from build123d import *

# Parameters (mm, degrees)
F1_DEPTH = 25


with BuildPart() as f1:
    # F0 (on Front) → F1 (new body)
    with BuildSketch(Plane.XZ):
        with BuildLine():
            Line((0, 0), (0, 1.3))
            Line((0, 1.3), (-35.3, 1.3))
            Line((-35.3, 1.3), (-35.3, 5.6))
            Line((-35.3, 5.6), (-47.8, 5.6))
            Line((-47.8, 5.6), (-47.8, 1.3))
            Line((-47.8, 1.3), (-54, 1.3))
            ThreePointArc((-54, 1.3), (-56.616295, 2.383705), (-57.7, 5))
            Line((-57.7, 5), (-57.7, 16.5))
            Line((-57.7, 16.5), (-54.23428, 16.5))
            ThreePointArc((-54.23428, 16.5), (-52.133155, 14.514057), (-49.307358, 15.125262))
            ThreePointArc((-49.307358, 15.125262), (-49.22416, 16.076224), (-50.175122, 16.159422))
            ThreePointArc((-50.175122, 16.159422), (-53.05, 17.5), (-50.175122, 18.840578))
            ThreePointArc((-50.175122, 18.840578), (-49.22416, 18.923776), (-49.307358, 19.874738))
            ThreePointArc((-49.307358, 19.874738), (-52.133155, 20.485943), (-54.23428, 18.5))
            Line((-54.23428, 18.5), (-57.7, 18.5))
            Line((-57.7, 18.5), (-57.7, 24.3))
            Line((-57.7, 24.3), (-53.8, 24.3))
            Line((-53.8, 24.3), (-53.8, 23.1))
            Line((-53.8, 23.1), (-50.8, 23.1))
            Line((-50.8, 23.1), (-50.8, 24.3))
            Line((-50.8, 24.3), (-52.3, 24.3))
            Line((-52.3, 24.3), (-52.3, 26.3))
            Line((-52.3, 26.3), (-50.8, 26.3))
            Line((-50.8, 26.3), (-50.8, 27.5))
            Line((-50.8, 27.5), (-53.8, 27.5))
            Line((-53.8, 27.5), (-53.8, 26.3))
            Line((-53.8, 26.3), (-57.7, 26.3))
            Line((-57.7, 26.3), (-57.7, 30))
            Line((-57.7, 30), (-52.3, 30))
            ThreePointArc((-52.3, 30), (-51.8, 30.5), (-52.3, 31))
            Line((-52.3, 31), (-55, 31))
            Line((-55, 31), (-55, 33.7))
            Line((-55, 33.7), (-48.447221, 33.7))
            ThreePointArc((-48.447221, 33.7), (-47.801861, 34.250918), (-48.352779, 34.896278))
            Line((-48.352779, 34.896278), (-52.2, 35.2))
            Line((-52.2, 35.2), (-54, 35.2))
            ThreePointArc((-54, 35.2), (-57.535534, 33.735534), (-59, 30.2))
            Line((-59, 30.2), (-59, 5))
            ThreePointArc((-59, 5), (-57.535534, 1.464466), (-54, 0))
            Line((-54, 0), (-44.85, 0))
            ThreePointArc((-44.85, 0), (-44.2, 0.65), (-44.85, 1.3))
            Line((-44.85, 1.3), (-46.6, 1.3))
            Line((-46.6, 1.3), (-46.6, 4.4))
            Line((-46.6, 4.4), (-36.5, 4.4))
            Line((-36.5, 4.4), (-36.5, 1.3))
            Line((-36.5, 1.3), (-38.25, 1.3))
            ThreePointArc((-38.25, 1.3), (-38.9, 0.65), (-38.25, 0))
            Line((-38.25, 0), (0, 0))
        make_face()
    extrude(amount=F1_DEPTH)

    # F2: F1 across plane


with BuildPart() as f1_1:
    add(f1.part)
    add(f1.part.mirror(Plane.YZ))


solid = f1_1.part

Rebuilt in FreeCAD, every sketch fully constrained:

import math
import FreeCAD as App
import Part
import Sketcher
from FreeCAD import Vector

doc = App.newDocument("Part")
body = doc.addObject("PartDesign::Body", "Body")

sketch1 = doc.addObject("Sketcher::SketchObject", "Sketch")
body.addObject(sketch1)
sketch1.AttachmentSupport = (doc.XZ_Plane, [""])
sketch1.MapMode = "FlatFace"
sketch1.addGeometry([
    Part.LineSegment(Vector(0, 0, 0), Vector(0, 1.3, 0)),
    Part.LineSegment(Vector(0, 1.3, 0), Vector(-35.3, 1.3, 0)),
    Part.LineSegment(Vector(-35.3, 1.3, 0), Vector(-35.3, 5.6, 0)),
    Part.LineSegment(Vector(-35.3, 5.6, 0), Vector(-47.8, 5.6, 0)),
    Part.LineSegment(Vector(-47.8, 5.6, 0), Vector(-47.8, 1.3, 0)),
    Part.LineSegment(Vector(-47.8, 1.3, 0), Vector(-54, 1.3, 0)),
    Part.ArcOfCircle(Part.Circle(Vector(-54, 5, 0), Vector(0, 0, 1), 3.7), math.radians(-180), math.radians(-90)),
    Part.LineSegment(Vector(-57.7, 5, 0), Vector(-57.7, 16.5, 0)),
    Part.LineSegment(Vector(-57.7, 16.5, 0), Vector(-54.2, 16.5, 0)),
    Part.ArcOfCircle(Part.Circle(Vector(-51.3, 17.5, 0), Vector(0, 0, 1), 3.1), math.radians(-161), math.radians(-50)),
    Part.ArcOfCircle(Part.Circle(Vector(-49.7, 15.6, 0), Vector(0, 0, 1), 0.7), math.radians(-50), math.radians(130)),
    Part.ArcOfCircle(Part.Circle(Vector(-51.3, 17.5, 0), Vector(0, 0, 1), 1.7), math.radians(50), math.radians(310)),
    Part.ArcOfCircle(Part.Circle(Vector(-49.7, 19.4, 0), Vector(0, 0, 1), 0.7), math.radians(-130), math.radians(50)),
    Part.ArcOfCircle(Part.Circle(Vector(-51.3, 17.5, 0), Vector(0, 0, 1), 3.1), math.radians(50), math.radians(161)),
    Part.LineSegment(Vector(-54.2, 18.5, 0), Vector(-57.7, 18.5, 0)),
    Part.LineSegment(Vector(-57.7, 18.5, 0), Vector(-57.7, 24.3, 0)),
    Part.LineSegment(Vector(-57.7, 24.3, 0), Vector(-53.8, 24.3, 0)),
    Part.LineSegment(Vector(-53.8, 24.3, 0), Vector(-53.8, 23.1, 0)),
    Part.LineSegment(Vector(-53.8, 23.1, 0), Vector(-50.8, 23.1, 0)),
    Part.LineSegment(Vector(-50.8, 23.1, 0), Vector(-50.8, 24.3, 0)),
    Part.LineSegment(Vector(-50.8, 24.3, 0), Vector(-52.3, 24.3, 0)),
    Part.LineSegment(Vector(-52.3, 24.3, 0), Vector(-52.3, 26.3, 0)),
    Part.LineSegment(Vector(-52.3, 26.3, 0), Vector(-50.8, 26.3, 0)),
    Part.LineSegment(Vector(-50.8, 26.3, 0), Vector(-50.8, 27.5, 0)),
    Part.LineSegment(Vector(-50.8, 27.5, 0), Vector(-53.8, 27.5, 0)),
    Part.LineSegment(Vector(-53.8, 27.5, 0), Vector(-53.8, 26.3, 0)),
    Part.LineSegment(Vector(-53.8, 26.3, 0), Vector(-57.7, 26.3, 0)),
    Part.LineSegment(Vector(-57.7, 26.3, 0), Vector(-57.7, 30, 0)),
    Part.LineSegment(Vector(-57.7, 30, 0), Vector(-52.3, 30, 0)),
    Part.ArcOfCircle(Part.Circle(Vector(-52.3, 30.5, 0), Vector(0, 0, 1), 0.5), math.radians(-90), math.radians(90)),
    Part.LineSegment(Vector(-52.3, 31, 0), Vector(-55, 31, 0)),
    Part.LineSegment(Vector(-55, 31, 0), Vector(-55, 33.7, 0)),
    Part.LineSegment(Vector(-55, 33.7, 0), Vector(-48.4, 33.7, 0)),
    Part.ArcOfCircle(Part.Circle(Vector(-48.4, 34.3, 0), Vector(0, 0, 1), 0.6), math.radians(-95), math.radians(85)),
    Part.LineSegment(Vector(-48.4, 34.9, 0), Vector(-52.2, 35.2, 0)),
    Part.LineSegment(Vector(-52.2, 35.2, 0), Vector(-54, 35.2, 0)),
    Part.ArcOfCircle(Part.Circle(Vector(-54, 30.2, 0), Vector(0, 0, 1), 5), math.radians(90), math.radians(180)),
    Part.LineSegment(Vector(-59, 30.2, 0), Vector(-59, 5, 0)),
    Part.ArcOfCircle(Part.Circle(Vector(-54, 5, 0), Vector(0, 0, 1), 5), math.radians(180), math.radians(270)),
    Part.LineSegment(Vector(-54, 0, 0), Vector(-44.9, 0, 0)),
    Part.ArcOfCircle(Part.Circle(Vector(-44.9, 0.7, 0), Vector(0, 0, 1), 0.7), math.radians(-90), math.radians(90)),
    Part.LineSegment(Vector(-44.9, 1.3, 0), Vector(-46.6, 1.3, 0)),
    Part.LineSegment(Vector(-46.6, 1.3, 0), Vector(-46.6, 4.4, 0)),
    Part.LineSegment(Vector(-46.6, 4.4, 0), Vector(-36.5, 4.4, 0)),
    Part.LineSegment(Vector(-36.5, 4.4, 0), Vector(-36.5, 1.3, 0)),
    Part.LineSegment(Vector(-36.5, 1.3, 0), Vector(-38.2, 1.3, 0)),
    Part.ArcOfCircle(Part.Circle(Vector(-38.2, 0.7, 0), Vector(0, 0, 1), 0.7), math.radians(90), math.radians(270)),
    Part.LineSegment(Vector(-38.2, 0, 0), Vector(0, 0, 0)),
], False)
sketch1.addConstraint([
    Sketcher.Constraint("Coincident", 0, 2, 1, 1),
    Sketcher.Constraint("Coincident", 1, 2, 2, 1),
    Sketcher.Constraint("Coincident", 2, 2, 3, 1),
    Sketcher.Constraint("Coincident", 3, 2, 4, 1),
    Sketcher.Constraint("Coincident", 4, 2, 5, 1),
    Sketcher.Constraint("Tangent", 5, 2, 6, 2),
    Sketcher.Constraint("Tangent", 6, 1, 7, 1),
    Sketcher.Constraint("Coincident", 7, 2, 8, 1),
    Sketcher.Constraint("Coincident", 8, 2, 9, 1),
    Sketcher.Constraint("Tangent", 9, 2, 10, 1),
    Sketcher.Constraint("Tangent", 10, 2, 11, 2),
    Sketcher.Constraint("Tangent", 11, 1, 12, 1),
    Sketcher.Constraint("Tangent", 12, 2, 13, 1),
    Sketcher.Constraint("Coincident", 13, 2, 14, 1),
    Sketcher.Constraint("Coincident", 14, 2, 15, 1),
    Sketcher.Constraint("Coincident", 15, 2, 16, 1),
    Sketcher.Constraint("Coincident", 16, 2, 17, 1),
    Sketcher.Constraint("Coincident", 17, 2, 18, 1),
    Sketcher.Constraint("Coincident", 18, 2, 19, 1),
    Sketcher.Constraint("Coincident", 19, 2, 20, 1),
    Sketcher.Constraint("Coincident", 20, 2, 21, 1),
    Sketcher.Constraint("Coincident", 21, 2, 22, 1),
    Sketcher.Constraint("Coincident", 22, 2, 23, 1),
    Sketcher.Constraint("Coincident", 23, 2, 24, 1),
    Sketcher.Constraint("Coincident", 24, 2, 25, 1),
    Sketcher.Constraint("Coincident", 25, 2, 26, 1),
    Sketcher.Constraint("Coincident", 26, 2, 27, 1),
    Sketcher.Constraint("Coincident", 27, 2, 28, 1),
    Sketcher.Constraint("Tangent", 28, 2, 29, 1),
    Sketcher.Constraint("Tangent", 29, 2, 30, 1),
    Sketcher.Constraint("Coincident", 30, 2, 31, 1),
    Sketcher.Constraint("Coincident", 31, 2, 32, 1),
    Sketcher.Constraint("Coincident", 32, 2, 33, 1),
    Sketcher.Constraint("Tangent", 33, 2, 34, 1),
    Sketcher.Constraint("Coincident", 34, 2, 35, 1),
    Sketcher.Constraint("Tangent", 35, 2, 36, 1),
    Sketcher.Constraint("Tangent", 36, 2, 37, 1),
    Sketcher.Constraint("Tangent", 37, 2, 38, 1),
    Sketcher.Constraint("Tangent", 38, 2, 39, 1),
    Sketcher.Constraint("Tangent", 39, 2, 40, 1),
    Sketcher.Constraint("Tangent", 40, 2, 41, 1),
    Sketcher.Constraint("Coincident", 41, 2, 42, 1),
    Sketcher.Constraint("Coincident", 42, 2, 43, 1),
    Sketcher.Constraint("Coincident", 43, 2, 44, 1),
    Sketcher.Constraint("Coincident", 44, 2, 45, 1),
    Sketcher.Constraint("Tangent", 45, 2, 46, 1),
    Sketcher.Constraint("Tangent", 46, 2, 47, 1),
    Sketcher.Constraint("Coincident", 47, 2, 0, 1),
    Sketcher.Constraint("Vertical", 0),
    Sketcher.Constraint("Horizontal", 1),
    Sketcher.Constraint("Vertical", 2),
    Sketcher.Constraint("Horizontal", 3),
    Sketcher.Constraint("Vertical", 4),
    Sketcher.Constraint("Horizontal", 5),
    Sketcher.Constraint("Vertical", 7),
    Sketcher.Constraint("Horizontal", 8),
    Sketcher.Constraint("Horizontal", 14),
    Sketcher.Constraint("Vertical", 15),
    Sketcher.Constraint("Horizontal", 16),
    Sketcher.Constraint("Vertical", 17),
    Sketcher.Constraint("Horizontal", 18),
    Sketcher.Constraint("Vertical", 19),
    Sketcher.Constraint("Horizontal", 20),
    Sketcher.Constraint("Vertical", 21),
    Sketcher.Constraint("Horizontal", 22),
    Sketcher.Constraint("Vertical", 23),
    Sketcher.Constraint("Horizontal", 24),
    Sketcher.Constraint("Vertical", 25),
    Sketcher.Constraint("Horizontal", 26),
    Sketcher.Constraint("Vertical", 27),
    Sketcher.Constraint("Horizontal", 28),
    Sketcher.Constraint("Horizontal", 30),
    Sketcher.Constraint("Vertical", 31),
    Sketcher.Constraint("Horizontal", 32),
    Sketcher.Constraint("Horizontal", 35),
    Sketcher.Constraint("Vertical", 37),
    Sketcher.Constraint("Horizontal", 39),
    Sketcher.Constraint("Horizontal", 41),
    Sketcher.Constraint("Vertical", 42),
    Sketcher.Constraint("Horizontal", 43),
    Sketcher.Constraint("Vertical", 44),
    Sketcher.Constraint("Horizontal", 45),
    Sketcher.Constraint("Horizontal", 47),
    Sketcher.Constraint("Coincident", 47, 2, -1, 1),
    Sketcher.Constraint("Coincident", 11, 3, 9, 3),
    Sketcher.Constraint("Coincident", 13, 3, 9, 3),
    Sketcher.Constraint("Coincident", 38, 3, 6, 3),
    Sketcher.Constraint("Equal", 10, 12),
    Sketcher.Constraint("Equal", 36, 38),
    Sketcher.Constraint("Equal", 40, 46),
    Sketcher.Constraint("PointOnObject", 38, 2, -1),
    Sketcher.Constraint("Horizontal", 1, 2, 4, 2),
    Sketcher.Constraint("Horizontal", 16, 2, 19, 2),
    Sketcher.Constraint("Horizontal", 22, 2, 25, 2),
    Sketcher.Constraint("Horizontal", 5, 2, 40, 2),
    Sketcher.Constraint("Vertical", 10, 3, 12, 3),
    Sketcher.Constraint("Vertical", 8, 2, 13, 2),
    Sketcher.Constraint("Vertical", 7, 2, 14, 2),
    Sketcher.Constraint("Vertical", 29, 3, 20, 2),
    Sketcher.Constraint("Vertical", 19, 2, 22, 2),
    Sketcher.Constraint("Vertical", 17, 2, 24, 2),
    Sketcher.Constraint("Vertical", 15, 2, 26, 2),
    Sketcher.Constraint("Equal", 41, 45),
    Sketcher.Constraint("Equal", 19, 23),
    Sketcher.Constraint("Equal", 30, 31),
    Sketcher.Constraint("Radius", 36, 5.0),
    Sketcher.Constraint("Radius", 6, 3.7),
    Sketcher.Constraint("Radius", 9, 3.1),
    Sketcher.Constraint("Radius", 29, 0.5),
    Sketcher.Constraint("Radius", 33, 0.6),
    Sketcher.Constraint("DistanceX", 18, 1, 18, 2, 3.0),
    Sketcher.Constraint("DistanceY", 21, 1, 21, 2, 2.0),
    Sketcher.Constraint("Radius", 11, 1.75),
    Sketcher.Constraint("DistanceX", 1, 2, 1, 1, 35.3),
    Sketcher.Constraint("DistanceX", 3, 2, 3, 1, 12.5),
    Sketcher.Constraint("DistanceX", 5, 2, 5, 1, 6.2),
    Sketcher.Constraint("DistanceX", 16, 1, 16, 2, 3.9),
    Sketcher.Constraint("DistanceX", 20, 2, 20, 1, 1.5),
    Sketcher.Constraint("DistanceX", 30, 2, 30, 1, 2.7),
    Sketcher.Constraint("DistanceX", 35, 2, 35, 1, 1.8),
    Sketcher.Constraint("DistanceX", 43, 1, 43, 2, 10.1),
    Sketcher.Constraint("DistanceY", 2, 1, 2, 2, 4.3),
    Sketcher.Constraint("DistanceY", 7, 1, 7, 2, 11.5),
    Sketcher.Constraint("DistanceY", 15, 1, 15, 2, 5.8),
    Sketcher.Constraint("DistanceY", 17, 2, 17, 1, 1.2),
    Sketcher.Constraint("DistanceY", 27, 1, 27, 2, 3.7),
    Sketcher.Constraint("DistanceY", 37, 2, 37, 1, 25.2),
    Sketcher.Constraint("DistanceY", 42, 1, 42, 2, 3.1),
    Sketcher.Constraint("DistanceY", -1, 1, 27, 2, 30.0),
    Sketcher.Constraint("DistanceX", 29, 3, 13, 3, 1.0),
    Sketcher.Constraint("DistanceX", 39, 1, 39, 2, 9.15),
    Sketcher.Constraint("DistanceX", 41, 2, 41, 1, 1.75),
    Sketcher.Constraint("DistanceX", 33, 3, -1, 1, 48.4),
    Sketcher.Constraint("DistanceX", 32, 1, 32, 2, 6.552779),
    Sketcher.Constraint("DistanceX", 10, 3, -1, 1, 49.74124),
])
pad1 = doc.addObject("PartDesign::Pad", "Pad")
body.addObject(pad1)
pad1.Profile = sketch1
pad1.Length = 25
body2 = doc.addObject("PartDesign::Body", "Body001")
doc.recompute()

body2.BaseFeature = body
doc.recompute()

mirroring = doc.addObject("Part::Mirroring", "Mirroring")
mirroring.Source = body
mirroring.Base = Vector(0, 0, 0)
mirroring.Normal = Vector(1, 0, 0)
body3 = doc.addObject("PartDesign::Body", "Body002")
body3.BaseFeature = mirroring
boolean = doc.addObject("PartDesign::Boolean", "Boolean")
body2.addObject(boolean)
boolean.Type = "Fuse"
boolean.addObjects([body3])
doc.recompute()
mirroring.Visibility = False

doc.recompute()
